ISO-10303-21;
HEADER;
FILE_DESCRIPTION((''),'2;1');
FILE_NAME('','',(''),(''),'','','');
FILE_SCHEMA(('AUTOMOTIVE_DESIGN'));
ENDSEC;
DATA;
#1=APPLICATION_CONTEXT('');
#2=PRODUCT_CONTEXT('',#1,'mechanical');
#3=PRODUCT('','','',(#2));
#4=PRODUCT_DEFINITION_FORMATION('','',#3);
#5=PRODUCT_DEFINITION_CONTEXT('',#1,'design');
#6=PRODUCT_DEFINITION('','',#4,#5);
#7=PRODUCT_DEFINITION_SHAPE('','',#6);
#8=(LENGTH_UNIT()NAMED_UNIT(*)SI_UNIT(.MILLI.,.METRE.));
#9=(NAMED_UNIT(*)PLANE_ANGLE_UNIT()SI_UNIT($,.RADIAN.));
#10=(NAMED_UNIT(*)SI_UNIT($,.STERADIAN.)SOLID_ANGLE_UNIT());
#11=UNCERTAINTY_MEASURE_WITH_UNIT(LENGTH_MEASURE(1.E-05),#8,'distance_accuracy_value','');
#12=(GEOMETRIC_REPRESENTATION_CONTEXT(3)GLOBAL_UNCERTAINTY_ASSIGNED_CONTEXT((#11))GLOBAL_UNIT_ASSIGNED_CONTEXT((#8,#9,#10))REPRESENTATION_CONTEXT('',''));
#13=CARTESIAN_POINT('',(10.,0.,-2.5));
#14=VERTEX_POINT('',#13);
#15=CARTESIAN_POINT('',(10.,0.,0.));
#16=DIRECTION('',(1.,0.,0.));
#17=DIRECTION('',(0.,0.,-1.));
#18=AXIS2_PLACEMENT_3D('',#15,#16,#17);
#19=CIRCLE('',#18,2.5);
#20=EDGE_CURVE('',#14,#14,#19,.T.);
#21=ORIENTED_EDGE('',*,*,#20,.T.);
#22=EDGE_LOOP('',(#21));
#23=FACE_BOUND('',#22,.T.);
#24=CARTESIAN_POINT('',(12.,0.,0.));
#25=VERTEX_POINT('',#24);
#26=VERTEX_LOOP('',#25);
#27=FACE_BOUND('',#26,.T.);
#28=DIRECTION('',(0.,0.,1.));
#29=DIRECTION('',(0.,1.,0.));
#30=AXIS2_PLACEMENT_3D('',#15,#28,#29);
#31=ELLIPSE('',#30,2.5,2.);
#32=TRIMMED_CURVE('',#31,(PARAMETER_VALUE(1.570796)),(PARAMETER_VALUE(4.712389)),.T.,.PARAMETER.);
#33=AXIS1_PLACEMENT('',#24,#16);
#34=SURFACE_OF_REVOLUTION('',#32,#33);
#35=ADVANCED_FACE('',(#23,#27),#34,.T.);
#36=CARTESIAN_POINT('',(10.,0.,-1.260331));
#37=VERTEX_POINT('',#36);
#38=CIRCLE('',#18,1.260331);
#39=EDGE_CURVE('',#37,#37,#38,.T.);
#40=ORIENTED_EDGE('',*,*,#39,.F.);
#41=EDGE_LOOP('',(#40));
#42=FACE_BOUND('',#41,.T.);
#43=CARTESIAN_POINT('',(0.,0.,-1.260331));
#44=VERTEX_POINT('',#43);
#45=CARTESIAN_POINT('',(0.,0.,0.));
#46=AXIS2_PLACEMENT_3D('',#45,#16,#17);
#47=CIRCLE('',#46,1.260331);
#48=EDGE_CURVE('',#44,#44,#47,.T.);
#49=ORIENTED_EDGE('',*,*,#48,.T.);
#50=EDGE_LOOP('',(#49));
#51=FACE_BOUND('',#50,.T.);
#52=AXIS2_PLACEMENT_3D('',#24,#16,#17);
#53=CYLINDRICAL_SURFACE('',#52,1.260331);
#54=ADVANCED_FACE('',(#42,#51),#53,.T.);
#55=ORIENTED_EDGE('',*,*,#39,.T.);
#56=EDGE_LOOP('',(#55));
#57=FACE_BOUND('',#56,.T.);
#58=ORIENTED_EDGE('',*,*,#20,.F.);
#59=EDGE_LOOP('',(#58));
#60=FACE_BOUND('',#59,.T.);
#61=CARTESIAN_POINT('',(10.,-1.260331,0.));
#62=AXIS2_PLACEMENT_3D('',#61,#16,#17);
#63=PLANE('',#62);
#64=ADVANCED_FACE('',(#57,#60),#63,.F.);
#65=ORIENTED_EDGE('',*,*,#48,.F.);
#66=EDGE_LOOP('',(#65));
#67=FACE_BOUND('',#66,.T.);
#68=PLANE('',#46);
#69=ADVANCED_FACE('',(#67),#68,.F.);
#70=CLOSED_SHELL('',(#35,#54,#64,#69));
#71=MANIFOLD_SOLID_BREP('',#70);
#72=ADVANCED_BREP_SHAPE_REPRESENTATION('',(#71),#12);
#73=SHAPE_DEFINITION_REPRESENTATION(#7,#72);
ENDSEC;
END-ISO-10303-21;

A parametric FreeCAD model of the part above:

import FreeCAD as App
import Part
import Sketcher
from FreeCAD import Vector

doc = App.newDocument("Part")
params = doc.addObject("Spreadsheet::Sheet", "Params")
for row, (alias, value) in enumerate([
    ("revolution_angle", "360 deg"),
], start=1):
    params.set(f"A{row}", alias)
    params.set(f"B{row}", "=" + value)
    params.setAlias(f"B{row}", alias)

body = doc.addObject("PartDesign::Body", "Body")

# Sketch on XY plane
sketch1 = body.newObject("Sketcher::SketchObject", "Sketch")
sketch1.AttachmentSupport = (doc.getObject("XY_Plane"), [""])
sketch1.MapMode = "FlatFace"
sketch1.addGeometry([
    Part.LineSegment(Vector(0, 0, 0), Vector(0, -1.260331, 0)),  # 0
    Part.LineSegment(Vector(0, -1.260331, 0), Vector(10, -1.260331, 0)),  # 1
    Part.LineSegment(Vector(10, -1.260331, 0), Vector(10, -2.5, 0)),  # 2
    Part.BSplineCurve([Vector(10, -2.5, 0), Vector(12, -2.5, 0), Vector(12, 0, 0)], [3, 3], [3.141592654, 4.71238898], False, 2, [1, 0.707106781, 1], False),  # 3
    Part.LineSegment(Vector(12, 0, 0), Vector(0, 0, 0)),  # 4
], False)
sketch1.addConstraint([
    Sketcher.Constraint("Block", 3),
    Sketcher.Constraint("Coincident", 0, 2, 1, 1),
    Sketcher.Constraint("Coincident", 1, 2, 2, 1),
    Sketcher.Constraint("Coincident", 2, 2, 3, 1),
    Sketcher.Constraint("Coincident", 3, 2, 4, 1),
    Sketcher.Constraint("Coincident", 4, 2, 0, 1),
    Sketcher.Constraint("Vertical", 0),
    Sketcher.Constraint("Horizontal", 1),
    Sketcher.Constraint("Vertical", 2),
    Sketcher.Constraint("Horizontal", 4),
    Sketcher.Constraint("PointOnObject", 0, 2, -2),
    Sketcher.Constraint("DistanceY", 0, 2, 0, 1, 1.260331),
])
revolution = body.newObject("PartDesign::Revolution", "Revolution")
revolution.Profile = sketch1
revolution.ReferenceAxis = (sketch1, ["H_Axis"])
revolution.setExpression("Angle", "Params.revolution_angle")

doc.recompute()
